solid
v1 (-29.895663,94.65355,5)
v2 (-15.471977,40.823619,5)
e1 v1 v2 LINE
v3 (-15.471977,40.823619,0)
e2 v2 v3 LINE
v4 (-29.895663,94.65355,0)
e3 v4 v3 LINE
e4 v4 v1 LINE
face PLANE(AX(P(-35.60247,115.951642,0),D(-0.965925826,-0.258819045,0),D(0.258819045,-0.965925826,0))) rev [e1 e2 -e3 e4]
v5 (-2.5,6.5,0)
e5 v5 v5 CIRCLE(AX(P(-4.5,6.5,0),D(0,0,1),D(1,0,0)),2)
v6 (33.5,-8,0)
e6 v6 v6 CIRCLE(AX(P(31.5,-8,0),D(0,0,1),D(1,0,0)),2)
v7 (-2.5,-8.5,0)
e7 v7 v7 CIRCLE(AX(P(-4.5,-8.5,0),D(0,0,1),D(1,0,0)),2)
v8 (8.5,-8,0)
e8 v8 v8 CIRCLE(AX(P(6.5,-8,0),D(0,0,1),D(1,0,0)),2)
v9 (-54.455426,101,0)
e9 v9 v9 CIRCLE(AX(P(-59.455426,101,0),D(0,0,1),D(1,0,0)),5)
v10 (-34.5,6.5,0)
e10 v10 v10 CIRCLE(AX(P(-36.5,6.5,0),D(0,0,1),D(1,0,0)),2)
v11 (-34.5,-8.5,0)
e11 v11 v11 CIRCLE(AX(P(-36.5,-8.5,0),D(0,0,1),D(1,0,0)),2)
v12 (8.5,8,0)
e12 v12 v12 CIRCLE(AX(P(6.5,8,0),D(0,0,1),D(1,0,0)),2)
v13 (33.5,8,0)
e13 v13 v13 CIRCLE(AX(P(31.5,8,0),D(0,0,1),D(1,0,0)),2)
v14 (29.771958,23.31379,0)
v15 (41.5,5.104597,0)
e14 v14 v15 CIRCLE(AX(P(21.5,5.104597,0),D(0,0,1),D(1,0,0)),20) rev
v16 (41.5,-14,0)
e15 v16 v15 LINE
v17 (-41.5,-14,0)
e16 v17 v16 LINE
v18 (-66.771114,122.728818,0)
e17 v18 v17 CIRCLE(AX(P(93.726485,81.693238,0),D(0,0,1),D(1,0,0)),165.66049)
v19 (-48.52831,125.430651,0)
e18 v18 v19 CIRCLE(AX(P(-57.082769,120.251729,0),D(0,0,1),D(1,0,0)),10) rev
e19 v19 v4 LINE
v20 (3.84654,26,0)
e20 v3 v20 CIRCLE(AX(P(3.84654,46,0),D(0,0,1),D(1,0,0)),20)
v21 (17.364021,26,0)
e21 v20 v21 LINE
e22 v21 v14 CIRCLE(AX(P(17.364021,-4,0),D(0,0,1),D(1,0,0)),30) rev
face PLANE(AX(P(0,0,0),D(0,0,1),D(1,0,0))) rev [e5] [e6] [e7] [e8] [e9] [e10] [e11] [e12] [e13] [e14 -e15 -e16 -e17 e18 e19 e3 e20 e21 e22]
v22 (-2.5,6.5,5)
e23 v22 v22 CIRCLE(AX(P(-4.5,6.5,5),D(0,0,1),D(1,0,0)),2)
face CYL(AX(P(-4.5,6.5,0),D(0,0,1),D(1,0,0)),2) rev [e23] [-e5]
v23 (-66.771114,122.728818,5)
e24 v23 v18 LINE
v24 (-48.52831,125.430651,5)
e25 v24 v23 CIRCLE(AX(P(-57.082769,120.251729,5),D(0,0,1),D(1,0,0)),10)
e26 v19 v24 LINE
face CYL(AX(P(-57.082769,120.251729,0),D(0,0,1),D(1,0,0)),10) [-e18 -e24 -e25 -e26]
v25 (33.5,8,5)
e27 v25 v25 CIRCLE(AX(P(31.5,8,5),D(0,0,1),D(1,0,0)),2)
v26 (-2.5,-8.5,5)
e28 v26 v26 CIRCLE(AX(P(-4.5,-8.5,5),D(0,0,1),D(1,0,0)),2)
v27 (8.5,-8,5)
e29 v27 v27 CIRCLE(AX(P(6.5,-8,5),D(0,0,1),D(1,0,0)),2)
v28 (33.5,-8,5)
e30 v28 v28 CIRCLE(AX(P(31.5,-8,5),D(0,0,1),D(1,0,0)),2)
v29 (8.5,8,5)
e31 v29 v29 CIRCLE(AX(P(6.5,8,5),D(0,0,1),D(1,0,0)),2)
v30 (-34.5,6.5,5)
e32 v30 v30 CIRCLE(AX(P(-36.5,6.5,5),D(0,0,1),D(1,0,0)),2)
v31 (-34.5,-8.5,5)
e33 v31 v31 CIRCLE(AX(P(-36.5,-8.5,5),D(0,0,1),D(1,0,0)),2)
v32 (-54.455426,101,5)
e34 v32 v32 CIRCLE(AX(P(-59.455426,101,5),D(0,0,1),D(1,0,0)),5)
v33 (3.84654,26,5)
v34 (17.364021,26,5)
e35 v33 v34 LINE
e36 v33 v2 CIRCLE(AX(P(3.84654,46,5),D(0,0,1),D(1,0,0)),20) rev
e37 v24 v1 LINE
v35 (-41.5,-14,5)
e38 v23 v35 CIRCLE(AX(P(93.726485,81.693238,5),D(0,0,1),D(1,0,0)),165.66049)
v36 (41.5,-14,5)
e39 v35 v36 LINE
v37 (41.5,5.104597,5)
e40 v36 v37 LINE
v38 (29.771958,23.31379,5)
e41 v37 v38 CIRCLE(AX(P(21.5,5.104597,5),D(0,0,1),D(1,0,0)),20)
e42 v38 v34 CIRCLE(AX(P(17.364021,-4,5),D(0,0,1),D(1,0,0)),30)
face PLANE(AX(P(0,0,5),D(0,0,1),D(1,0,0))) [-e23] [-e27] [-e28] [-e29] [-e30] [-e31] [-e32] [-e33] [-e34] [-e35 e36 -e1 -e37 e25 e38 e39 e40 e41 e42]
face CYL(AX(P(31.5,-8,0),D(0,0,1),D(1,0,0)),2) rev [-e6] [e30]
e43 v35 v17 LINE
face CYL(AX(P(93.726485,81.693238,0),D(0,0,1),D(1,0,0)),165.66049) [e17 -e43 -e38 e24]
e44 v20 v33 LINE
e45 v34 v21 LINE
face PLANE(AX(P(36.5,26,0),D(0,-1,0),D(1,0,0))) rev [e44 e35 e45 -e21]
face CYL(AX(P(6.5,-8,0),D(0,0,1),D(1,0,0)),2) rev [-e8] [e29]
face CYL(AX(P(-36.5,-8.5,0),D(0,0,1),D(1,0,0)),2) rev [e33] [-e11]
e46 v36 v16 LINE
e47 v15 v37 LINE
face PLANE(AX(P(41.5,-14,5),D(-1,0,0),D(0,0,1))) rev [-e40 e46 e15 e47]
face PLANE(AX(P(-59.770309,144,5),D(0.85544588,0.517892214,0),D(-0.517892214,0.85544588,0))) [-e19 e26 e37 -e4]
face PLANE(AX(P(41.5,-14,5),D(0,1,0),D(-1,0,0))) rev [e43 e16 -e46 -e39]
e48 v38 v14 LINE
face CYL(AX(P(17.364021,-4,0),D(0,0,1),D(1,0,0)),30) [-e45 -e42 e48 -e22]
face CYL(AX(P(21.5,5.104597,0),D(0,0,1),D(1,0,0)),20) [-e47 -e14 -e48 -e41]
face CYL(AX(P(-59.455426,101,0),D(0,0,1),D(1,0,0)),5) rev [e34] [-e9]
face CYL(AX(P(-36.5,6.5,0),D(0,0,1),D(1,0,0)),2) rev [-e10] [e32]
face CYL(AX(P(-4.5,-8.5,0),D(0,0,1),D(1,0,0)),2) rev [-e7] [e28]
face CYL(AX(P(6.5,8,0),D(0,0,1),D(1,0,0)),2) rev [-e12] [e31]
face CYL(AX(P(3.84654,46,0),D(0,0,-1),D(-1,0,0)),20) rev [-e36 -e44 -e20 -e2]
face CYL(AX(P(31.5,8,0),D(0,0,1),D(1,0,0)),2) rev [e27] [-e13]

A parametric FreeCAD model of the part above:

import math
import FreeCAD as App
import Part
import Sketcher
Q = App.Units.Quantity


def edges_at(feature, points):
    """Names of the edges that pass closest to the given points."""
    edges = feature.Shape.Edges
    near = lambda p: min(range(len(edges)), key=lambda i: edges[i].distToShape(Part.Vertex(*p))[0])
    return sorted({f"Edge{near(p) + 1}" for p in points})

doc = App.newDocument("Part")
params = doc.addObject("Spreadsheet::Sheet", "Params")
for row, (alias, value) in enumerate([
    ("sketch1_width", "83 mm"),
    ("sketch1_height", "28 mm"),
    ("pad1_length", "5 mm"),
    ("sketch2_diameter", "4 mm"),
    ("sketch3_width", "83 mm"),
    ("pad2_length", "5 mm"),
    ("sketch4_width", "48 mm"),
    ("fillet_radius", "30 mm"),
    ("fillet2_radius", "20 mm"),
    ("sketch5_diameter", "4 mm"),
    ("sketch6_height", "28 mm"),
    ("pad3_length", "5 mm"),
    ("fillet3_radius", "10 mm"),
    ("sketch7_diameter", "10 mm"),
    ("fillet4_radius", "20 mm"),
], start=1):
    params.set(f"A{row}", alias)
    params.set(f"B{row}", "=" + value)
    params.setAlias(f"B{row}", alias)

body = doc.addObject("PartDesign::Body", "Body")

# Sketch on XY plane
sketch1 = body.newObject("Sketcher::SketchObject", "Sketch")
sketch1.AttachmentSupport = (doc.getObject("XY_Plane"), [""])
sketch1.MapMode = "FlatFace"
sketch1.addGeometry([
    Part.LineSegment(App.Vector(-42, 14, 0), App.Vector(-42, -14, 0)),
    Part.LineSegment(App.Vector(-42, -14, 0), App.Vector(42, -14, 0)),
    Part.LineSegment(App.Vector(42, -14, 0), App.Vector(42, 14, 0)),
    Part.LineSegment(App.Vector(42, 14, 0), App.Vector(-42, 14, 0)),
], False)
sketch1.addConstraint([
    Sketcher.Constraint("Coincident", 0, 2, 1, 1),
    Sketcher.Constraint("Coincident", 1, 2, 2, 1),
    Sketcher.Constraint("Coincident", 2, 2, 3, 1),
    Sketcher.Constraint("Coincident", 3, 2, 0, 1),
    Sketcher.Constraint("Vertical", 0),
    Sketcher.Constraint("Horizontal", 1),
    Sketcher.Constraint("Vertical", 2),
    Sketcher.Constraint("Horizontal", 3),
    Sketcher.Constraint("Symmetric", 0, 2, 2, 2, -1, 1),
    Sketcher.Constraint("DistanceX", 1, 1, 1, 2, Q("83 mm")),
    Sketcher.Constraint("DistanceY", 0, 2, 0, 1, Q("28 mm")),
])
sketch1.setExpression("Constraints[9]", "Params.sketch1_width")
sketch1.setExpression("Constraints[10]", "Params.sketch1_height")
pad1 = body.newObject("PartDesign::Pad", "Pad")
pad1.Profile = sketch1
pad1.setExpression("Length", "Params.pad1_length")

# Sketch on XY plane
sketch2 = body.newObject("Sketcher::SketchObject", "Sketch001")
sketch2.AttachmentSupport = (doc.getObject("XY_Plane"), [""])
sketch2.MapMode = "FlatFace"
sketch2.AttachmentOffset = App.Placement(App.Vector(0, 0, 5), App.Rotation())
sketch2.addGeometry([
    Part.Circle(App.Vector(6.5, 8, 0), App.Vector(0, 0, 1), 2),
    Part.Circle(App.Vector(31.5, 8, 0), App.Vector(0, 0, 1), 2),
    Part.Circle(App.Vector(31.5, -8, 0), App.Vector(0, 0, 1), 2),
    Part.Circle(App.Vector(6.5, -8, 0), App.Vector(0, 0, 1), 2),
], False)
sketch2.addConstraint([
    Sketcher.Constraint("Equal", 0, 1),
    Sketcher.Constraint("Equal", 1, 2),
    Sketcher.Constraint("Equal", 2, 3),
    Sketcher.Constraint("Symmetric", 1, 3, 2, 3, -1),
    Sketcher.Constraint("Symmetric", 0, 3, 3, 3, -1),
    Sketcher.Constraint("Horizontal", 0, 3, 1, 3),
    Sketcher.Constraint("Diameter", 0, Q("4 mm")),
    Sketcher.Constraint("DistanceY", -1, 1, 0, 3, Q("8 mm")),
    Sketcher.Constraint("DistanceX", 0, 3, 1, 3, Q("25 mm")),
    Sketcher.Constraint("DistanceX", -1, 1, 0, 3, Q("6.5 mm")),
])
sketch2.setExpression("Constraints[6]", "Params.sketch2_diameter")
pocket1 = body.newObject("PartDesign::Pocket", "Pocket")
pocket1.Profile = sketch2
pocket1.Type = "ThroughAll"

# Sketch on XY plane
sketch3 = body.newObject("Sketcher::SketchObject", "Sketch002")
sketch3.AttachmentSupport = (doc.getObject("XY_Plane"), [""])
sketch3.MapMode = "FlatFace"
sketch3.addGeometry([
    Part.LineSegment(App.Vector(-42, 14, 0), App.Vector(-60, 144, 0)),
    Part.LineSegment(App.Vector(-60, 144, 0), App.Vector(-30, 94, 0)),
    Part.LineSegment(App.Vector(-30, 94, 0), App.Vector(42, 14, 0)),
    Part.LineSegment(App.Vector(42, 14, 0), App.Vector(-42, 14, 0)),
], False)
sketch3.addConstraint([
    Sketcher.Constraint("Coincident", 0, 2, 1, 1),
    Sketcher.Constraint("Coincident", 1, 2, 2, 1),
    Sketcher.Constraint("Coincident", 2, 2, 3, 1),
    Sketcher.Constraint("Coincident", 3, 2, 0, 1),
    Sketcher.Constraint("Horizontal", 3),
    Sketcher.Constraint("DistanceX", 3, 2, 3, 1, Q("83 mm")),
    Sketcher.Constraint("Angle", 0, Q("98 deg")),
    Sketcher.Constraint("DistanceY", -1, 1, 0, 2, Q("144 mm")),
    Sketcher.Constraint("DistanceY", -1, 1, 1, 2, Q("94 mm")),
    Sketcher.Constraint("DistanceY", -1, 1, 2, 2, Q("14 mm")),
    Sketcher.Constraint("DistanceX", 1, 2, 2, 2, Q("71 mm")),
    Sketcher.Constraint("DistanceX", 1, 2, -1, 1, Q("29.5 mm")),
])
sketch3.setExpression("Constraints[5]", "Params.sketch3_width")
pad2 = body.newObject("PartDesign::Pad", "Pad001")
pad2.Profile = sketch3
pad2.setExpression("Length", "Params.pad2_length")

# Sketch on XY plane
sketch4 = body.newObject("Sketcher::SketchObject", "Sketch003")
sketch4.AttachmentSupport = (doc.getObject("XY_Plane"), [""])
sketch4.MapMode = "FlatFace"
sketch4.AttachmentOffset = App.Placement(App.Vector(0, 0, 5), App.Rotation())
sketch4.addGeometry([
    Part.LineSegment(App.Vector(-12, 26, 0), App.Vector(36, 26, 0)),
    Part.LineSegment(App.Vector(36, 26, 0), App.Vector(-36, 116, 0)),
    Part.LineSegment(App.Vector(-36, 116, 0), App.Vector(-12, 26, 0)),
], False)
sketch4.addConstraint([
    Sketcher.Constraint("Coincident", 0, 2, 1, 1),
    Sketcher.Constraint("Coincident", 1, 2, 2, 1),
    Sketcher.Constraint("Coincident", 2, 2, 0, 1),
    Sketcher.Constraint("Horizontal", 0),
    Sketcher.Constraint("DistanceX", 0, 1, 0, 2, Q("48 mm")),
    Sketcher.Constraint("Angle", 2, Q("-75 deg")),
    Sketcher.Constraint("DistanceY", -1, 1, 0, 2, Q("26 mm")),
    Sketcher.Constraint("DistanceX", -1, 1, 0, 2, Q("36.5 mm")),
    Sketcher.Constraint("Distance", 1, Q("115.282541 mm")),
])
sketch4.setExpression("Constraints[4]", "Params.sketch4_width")
pocket2 = body.newObject("PartDesign::Pocket", "Pocket001")
pocket2.Profile = sketch4
pocket2.Type = "ThroughAll"
doc.recompute()

fillet = body.newObject("PartDesign::Fillet", "Fillet")
fillet.Base = (pocket2, edges_at(pocket2, [(30.85, 26, 2.5)]))
fillet.setExpression("Radius", "Params.fillet_radius")
doc.recompute()

fillet2 = body.newObject("PartDesign::Fillet", "Fillet001")
fillet2.Base = (fillet, edges_at(fillet, [(-11.5, 26, 2.5)]))
fillet2.setExpression("Radius", "Params.fillet2_radius")

# Sketch on XY plane
sketch5 = body.newObject("Sketcher::SketchObject", "Sketch004")
sketch5.AttachmentSupport = (doc.getObject("XY_Plane"), [""])
sketch5.MapMode = "FlatFace"
sketch5.AttachmentOffset = App.Placement(App.Vector(0, 0, 5), App.Rotation())
sketch5.addGeometry([
    Part.Circle(App.Vector(-36.5, -8.5, 0), App.Vector(0, 0, 1), 2),
    Part.Circle(App.Vector(-4.5, -8.5, 0), App.Vector(0, 0, 1), 2),
    Part.Circle(App.Vector(-4.5, 6.5, 0), App.Vector(0, 0, 1), 2),
    Part.Circle(App.Vector(-36.5, 6.5, 0), App.Vector(0, 0, 1), 2),
], False)
sketch5.addConstraint([
    Sketcher.Constraint("Equal", 0, 1),
    Sketcher.Constraint("Equal", 1, 2),
    Sketcher.Constraint("Equal", 2, 3),
    Sketcher.Constraint("Horizontal", 0, 3, 1, 3),
    Sketcher.Constraint("Horizontal", 2, 3, 3, 3),
    Sketcher.Constraint("Vertical", 1, 3, 2, 3),
    Sketcher.Constraint("Vertical", 0, 3, 3, 3),
    Sketcher.Constraint("Diameter", 0, Q("4 mm")),
    Sketcher.Constraint("DistanceX", 0, 3, 1, 3, Q("32 mm")),
    Sketcher.Constraint("DistanceY", 1, 3, 2, 3, Q("15 mm")),
    Sketcher.Constraint("DistanceX", 0, 3, -1, 1, Q("36.5 mm")),
    Sketcher.Constraint("DistanceY", 0, 3, -1, 1, Q("8.5 mm")),
])
sketch5.setExpression("Constraints[7]", "Params.sketch5_diameter")
pocket3 = body.newObject("PartDesign::Pocket", "Pocket002")
pocket3.Profile = sketch5
pocket3.Type = "ThroughAll"

# Sketch on XY plane
sketch6 = body.newObject("Sketcher::SketchObject", "Sketch005")
sketch6.AttachmentSupport = (doc.getObject("XY_Plane"), [""])
sketch6.MapMode = "FlatFace"
sketch6.AttachmentOffset = App.Placement(App.Vector(0, 0, 5), App.Rotation())
sketch6.addGeometry([
    Part.LineSegment(App.Vector(-42, -14, 0), App.Vector(-42, 14, 0)),
    Part.LineSegment(App.Vector(-42, 14, 0), App.Vector(-60, 144, 0)),
    Part.ArcOfCircle(Part.Circle(App.Vector(94, 82, 0), App.Vector(0, 0, 1), 166), math.radians(158), math.radians(215)),
], False)
sketch6.addConstraint([
    Sketcher.Constraint("Coincident", 0, 2, 1, 1),
    Sketcher.Constraint("Coincident", 1, 2, 2, 1),
    Sketcher.Constraint("Coincident", 2, 2, 0, 1),
    Sketcher.Constraint("Vertical", 0),
    Sketcher.Constraint("DistanceY", 0, 1, 0, 2, Q("28 mm")),
    Sketcher.Constraint("Angle", 1, Q("98 deg")),
    Sketcher.Constraint("DistanceY", -1, 1, 0, 2, Q("14 mm")),
    Sketcher.Constraint("DistanceY", -1, 1, 1, 2, Q("144 mm")),
    Sketcher.Constraint("DistanceX", 0, 2, -1, 1, Q("41.5 mm")),
    Sketcher.Constraint("Radius", 2, Q("165.66049 mm")),
])
sketch6.setExpression("Constraints[4]", "Params.sketch6_height")
pad3 = body.newObject("PartDesign::Pad", "Pad002")
pad3.Profile = sketch6
pad3.setExpression("Length", "Params.pad3_length")
pad3.Reversed = True
doc.recompute()

fillet3 = body.newObject("PartDesign::Fillet", "Fillet002")
fillet3.Base = (pad3, edges_at(pad3, [(-59.77, 144, 2.5)]))
fillet3.setExpression("Radius", "Params.fillet3_radius")

# Sketch on XY plane
sketch7 = body.newObject("Sketcher::SketchObject", "Sketch006")
sketch7.AttachmentSupport = (doc.getObject("XY_Plane"), [""])
sketch7.MapMode = "FlatFace"
sketch7.AttachmentOffset = App.Placement(App.Vector(0, 0, 5), App.Rotation())
sketch7.addGeometry(Part.Circle(App.Vector(-59, 101, 0), App.Vector(0, 0, 1), 5), False)
sketch7.addConstraint([
    Sketcher.Constraint("Diameter", 0, Q("10 mm")),
    Sketcher.Constraint("DistanceY", -1, 1, 0, 3, Q("101 mm")),
    Sketcher.Constraint("DistanceX", 0, 3, -1, 1, Q("59.455426 mm")),
])
sketch7.setExpression("Constraints[0]", "Params.sketch7_diameter")
pocket4 = body.newObject("PartDesign::Pocket", "Pocket003")
pocket4.Profile = sketch7
pocket4.Type = "ThroughAll"
doc.recompute()

fillet4 = body.newObject("PartDesign::Fillet", "Fillet003")
fillet4.Base = (pocket4, edges_at(pocket4, [(41.5, 14, 2.5)]))
fillet4.setExpression("Radius", "Params.fillet4_radius")

doc.recompute()
